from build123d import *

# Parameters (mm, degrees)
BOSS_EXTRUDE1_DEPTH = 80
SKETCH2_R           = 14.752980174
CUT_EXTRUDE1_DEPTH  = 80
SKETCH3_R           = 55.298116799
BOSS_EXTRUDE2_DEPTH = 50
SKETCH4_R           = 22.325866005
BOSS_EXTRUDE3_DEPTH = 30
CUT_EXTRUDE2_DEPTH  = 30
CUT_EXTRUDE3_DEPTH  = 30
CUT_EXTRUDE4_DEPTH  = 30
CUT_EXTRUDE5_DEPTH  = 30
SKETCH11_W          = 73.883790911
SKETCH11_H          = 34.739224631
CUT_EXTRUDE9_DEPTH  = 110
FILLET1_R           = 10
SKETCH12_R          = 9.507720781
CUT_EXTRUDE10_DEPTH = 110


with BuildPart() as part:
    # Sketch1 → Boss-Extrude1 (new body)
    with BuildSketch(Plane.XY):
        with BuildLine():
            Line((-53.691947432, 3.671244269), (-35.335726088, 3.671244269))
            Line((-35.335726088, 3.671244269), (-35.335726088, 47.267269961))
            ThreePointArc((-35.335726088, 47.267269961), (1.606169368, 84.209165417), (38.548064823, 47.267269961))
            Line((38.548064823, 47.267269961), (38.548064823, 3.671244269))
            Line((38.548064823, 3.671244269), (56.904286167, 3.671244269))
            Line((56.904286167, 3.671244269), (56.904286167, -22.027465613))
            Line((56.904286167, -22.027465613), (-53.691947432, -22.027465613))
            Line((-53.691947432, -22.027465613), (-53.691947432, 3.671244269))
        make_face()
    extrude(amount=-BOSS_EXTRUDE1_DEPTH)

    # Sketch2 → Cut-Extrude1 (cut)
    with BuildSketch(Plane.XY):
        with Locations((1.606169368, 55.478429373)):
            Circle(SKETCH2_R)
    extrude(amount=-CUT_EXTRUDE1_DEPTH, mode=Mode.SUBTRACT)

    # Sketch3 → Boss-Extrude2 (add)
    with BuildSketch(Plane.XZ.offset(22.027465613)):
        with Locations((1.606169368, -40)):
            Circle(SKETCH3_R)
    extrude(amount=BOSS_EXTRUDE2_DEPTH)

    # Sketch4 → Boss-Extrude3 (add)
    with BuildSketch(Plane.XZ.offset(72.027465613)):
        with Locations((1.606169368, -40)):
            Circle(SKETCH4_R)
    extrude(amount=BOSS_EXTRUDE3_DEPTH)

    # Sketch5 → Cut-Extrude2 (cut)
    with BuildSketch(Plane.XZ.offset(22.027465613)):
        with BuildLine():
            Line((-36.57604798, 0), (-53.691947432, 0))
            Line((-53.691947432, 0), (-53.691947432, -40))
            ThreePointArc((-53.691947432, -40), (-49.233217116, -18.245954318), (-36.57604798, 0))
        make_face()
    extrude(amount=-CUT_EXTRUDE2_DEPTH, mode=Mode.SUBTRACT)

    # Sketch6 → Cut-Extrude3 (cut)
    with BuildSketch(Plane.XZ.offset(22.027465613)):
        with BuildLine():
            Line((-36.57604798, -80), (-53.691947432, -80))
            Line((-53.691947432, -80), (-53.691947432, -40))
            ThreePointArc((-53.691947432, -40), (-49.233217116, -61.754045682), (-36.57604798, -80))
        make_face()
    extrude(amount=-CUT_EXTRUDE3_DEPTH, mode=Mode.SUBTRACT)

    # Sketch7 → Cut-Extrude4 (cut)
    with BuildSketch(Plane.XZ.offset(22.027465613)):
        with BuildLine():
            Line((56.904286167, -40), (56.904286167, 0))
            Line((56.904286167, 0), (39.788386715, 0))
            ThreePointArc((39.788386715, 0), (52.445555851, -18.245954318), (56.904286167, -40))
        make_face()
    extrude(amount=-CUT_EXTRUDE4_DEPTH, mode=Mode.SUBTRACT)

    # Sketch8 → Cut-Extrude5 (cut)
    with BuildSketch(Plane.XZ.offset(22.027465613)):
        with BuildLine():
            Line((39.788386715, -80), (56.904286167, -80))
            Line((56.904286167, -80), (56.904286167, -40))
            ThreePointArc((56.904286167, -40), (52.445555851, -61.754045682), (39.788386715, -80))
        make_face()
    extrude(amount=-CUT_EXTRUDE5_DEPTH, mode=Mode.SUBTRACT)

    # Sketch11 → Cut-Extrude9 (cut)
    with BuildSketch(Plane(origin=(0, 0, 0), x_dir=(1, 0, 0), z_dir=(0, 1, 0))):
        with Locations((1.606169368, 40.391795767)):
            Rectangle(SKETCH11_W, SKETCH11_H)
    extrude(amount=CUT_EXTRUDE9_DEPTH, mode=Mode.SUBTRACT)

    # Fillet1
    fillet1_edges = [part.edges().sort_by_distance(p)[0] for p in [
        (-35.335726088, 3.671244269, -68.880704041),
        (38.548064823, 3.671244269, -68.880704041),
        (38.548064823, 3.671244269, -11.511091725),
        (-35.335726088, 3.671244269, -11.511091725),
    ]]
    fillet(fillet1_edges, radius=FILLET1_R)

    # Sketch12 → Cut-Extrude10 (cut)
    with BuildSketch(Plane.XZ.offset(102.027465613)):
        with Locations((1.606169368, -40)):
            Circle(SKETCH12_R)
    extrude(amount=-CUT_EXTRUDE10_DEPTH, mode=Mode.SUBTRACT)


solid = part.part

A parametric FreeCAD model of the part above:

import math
import FreeCAD as App
import Part
import Sketcher

V = App.Vector
Q = App.Units.Quantity


def edges_at(feature, points):
    """Names of the edges that pass closest to the given points."""
    edges = feature.Shape.Edges
    near = lambda p: min(range(len(edges)), key=lambda i: edges[i].distToShape(Part.Vertex(*p))[0])
    return sorted({f"Edge{near(p) + 1}" for p in points})

doc = App.newDocument("Part")
body = doc.addObject("PartDesign::Body", "Body")

sketch1 = doc.addObject("Sketcher::SketchObject", "Sketch")
body.addObject(sketch1)
sketch1.AttachmentSupport = (doc.XY_Plane, [""])
sketch1.MapMode = "FlatFace"
sketch1.addGeometry(Part.LineSegment(V(-35.335726, 3.671244, 0), V(-53.691947, 3.671244, 0)), False)
sketch1.addGeometry(Part.LineSegment(V(-53.691947, 3.671244, 0), V(-53.691947, -22.027466, 0)), False)
sketch1.addGeometry(Part.LineSegment(V(-53.691947, -22.027466, 0), V(56.904286, -22.027466, 0)), False)
sketch1.addGeometry(Part.LineSegment(V(56.904286, -22.027466, 0), V(56.904286, 3.671244, 0)), False)
sketch1.addGeometry(Part.LineSegment(V(56.904286, 3.671244, 0), V(38.548065, 3.671244, 0)), False)
sketch1.addGeometry(Part.LineSegment(V(38.548065, 3.671244, 0), V(38.548065, 47.26727, 0)), False)
sketch1.addGeometry(Part.ArcOfCircle(Part.Circle(V(1.606169, 47.26727, 0), V(0, 0, 1), 36.941895), math.radians(0), math.radians(180)), False)
sketch1.addGeometry(Part.LineSegment(V(-35.335726, 47.26727, 0), V(-35.335726, 3.671244, 0)), False)
sketch1.addConstraint(Sketcher.Constraint("Coincident", 0, 2, 1, 1))
sketch1.addConstraint(Sketcher.Constraint("Coincident", 1, 2, 2, 1))
sketch1.addConstraint(Sketcher.Constraint("Coincident", 2, 2, 3, 1))
sketch1.addConstraint(Sketcher.Constraint("Coincident", 3, 2, 4, 1))
sketch1.addConstraint(Sketcher.Constraint("Coincident", 4, 2, 5, 1))
sketch1.addConstraint(Sketcher.Constraint("Tangent", 5, 2, 6, 1))
sketch1.addConstraint(Sketcher.Constraint("Tangent", 6, 2, 7, 1))
sketch1.addConstraint(Sketcher.Constraint("Coincident", 7, 2, 0, 1))
sketch1.addConstraint(Sketcher.Constraint("Horizontal", 0))
sketch1.addConstraint(Sketcher.Constraint("Vertical", 1))
sketch1.addConstraint(Sketcher.Constraint("Horizontal", 2))
sketch1.addConstraint(Sketcher.Constraint("Vertical", 3))
sketch1.addConstraint(Sketcher.Constraint("Horizontal", 4))
sketch1.addConstraint(Sketcher.Constraint("Vertical", 5))
sketch1.addConstraint(Sketcher.Constraint("Vertical", 7))
sketch1.addConstraint(Sketcher.Constraint("Horizontal", 0, 2, 3, 2))
sketch1.addConstraint(Sketcher.Constraint("Equal", 0, 4))
sketch1.addConstraint(Sketcher.Constraint("Radius", 6, Q("36.941895 mm")))
sketch1.addConstraint(Sketcher.Constraint("DistanceX", 0, 2, 0, 1, Q("18.356221 mm")))
sketch1.addConstraint(Sketcher.Constraint("DistanceY", 1, 2, 1, 1, Q("25.69871 mm")))
sketch1.addConstraint(Sketcher.Constraint("DistanceY", 5, 1, 5, 2, Q("43.596026 mm")))
sketch1.addConstraint(Sketcher.Constraint("DistanceX", -1, 1, 6, 3, Q("1.606169 mm")))
sketch1.addConstraint(Sketcher.Constraint("DistanceY", -1, 1, 6, 3, Q("47.26727 mm")))
pad1 = doc.addObject("PartDesign::Pad", "Pad")
body.addObject(pad1)
pad1.Profile = sketch1
pad1.Length = 80
pad1.Reversed = True

sketch2 = doc.addObject("Sketcher::SketchObject", "Sketch001")
body.addObject(sketch2)
sketch2.AttachmentSupport = (doc.XY_Plane, [""])
sketch2.MapMode = "FlatFace"
sketch2.addGeometry(Part.Circle(V(1.606169, 55.478429, 0), V(0, 0, 1), 14.75298), False)
sketch2.addConstraint(Sketcher.Constraint("Diameter", 0, Q("29.50596 mm")))
sketch2.addConstraint(Sketcher.Constraint("DistanceX", -1, 1, 0, 3, Q("1.606169 mm")))
sketch2.addConstraint(Sketcher.Constraint("DistanceY", -1, 1, 0, 3, Q("55.478429 mm")))
pocket1 = doc.addObject("PartDesign::Pocket", "Pocket")
body.addObject(pocket1)
pocket1.Profile = sketch2
pocket1.Length = 80

sketch3 = doc.addObject("Sketcher::SketchObject", "Sketch002")
body.addObject(sketch3)
sketch3.AttachmentSupport = (doc.XZ_Plane, [""])
sketch3.MapMode = "FlatFace"
sketch3.AttachmentOffset = App.Placement(V(0, 0, 22.027466), App.Rotation())
sketch3.addGeometry(Part.Circle(V(1.606169, -40, 0), V(0, 0, 1), 55.298117), False)
sketch3.addConstraint(Sketcher.Constraint("DistanceY", 0, 3, -1, 1, Q("40 mm")))
sketch3.addConstraint(Sketcher.Constraint("Diameter", 0, Q("110.596234 mm")))
sketch3.addConstraint(Sketcher.Constraint("DistanceX", -1, 1, 0, 3, Q("1.606169 mm")))
pad2 = doc.addObject("PartDesign::Pad", "Pad001")
body.addObject(pad2)
pad2.Profile = sketch3
pad2.Length = 50

sketch4 = doc.addObject("Sketcher::SketchObject", "Sketch003")
body.addObject(sketch4)
sketch4.AttachmentSupport = (doc.XZ_Plane, [""])
sketch4.MapMode = "FlatFace"
sketch4.AttachmentOffset = App.Placement(V(0, 0, 72.027466), App.Rotation())
sketch4.addGeometry(Part.Circle(V(1.606169, -40, 0), V(0, 0, 1), 22.325866), False)
sketch4.addConstraint(Sketcher.Constraint("DistanceY", 0, 3, -1, 1, Q("40 mm")))
sketch4.addConstraint(Sketcher.Constraint("Diameter", 0, Q("44.651732 mm")))
sketch4.addConstraint(Sketcher.Constraint("DistanceX", -1, 1, 0, 3, Q("1.606169 mm")))
pad3 = doc.addObject("PartDesign::Pad", "Pad002")
body.addObject(pad3)
pad3.Profile = sketch4
pad3.Length = 30

sketch5 = doc.addObject("Sketcher::SketchObject", "Sketch004")
body.addObject(sketch5)
sketch5.AttachmentSupport = (doc.XZ_Plane, [""])
sketch5.MapMode = "FlatFace"
sketch5.AttachmentOffset = App.Placement(V(0, 0, 22.027466), App.Rotation())
sketch5.addGeometry(Part.LineSegment(V(-36.576048, 0, 0), V(-53.691947, 0, 0)), False)
sketch5.addGeometry(Part.LineSegment(V(-53.691947, 0, 0), V(-53.691947, -40, 0)), False)
sketch5.addGeometry(Part.ArcOfCircle(Part.Circle(V(1.606169, -40, 0), V(0, 0, 1), 55.298117), math.radians(133.668079), math.radians(180)), False)
sketch5.addConstraint(Sketcher.Constraint("Coincident", 0, 2, 1, 1))
sketch5.addConstraint(Sketcher.Constraint("Tangent", 1, 2, 2, 2))
sketch5.addConstraint(Sketcher.Constraint("Coincident", 2, 1, 0, 1))
sketch5.addConstraint(Sketcher.Constraint("Horizontal", 0))
sketch5.addConstraint(Sketcher.Constraint("Vertical", 1))
sketch5.addConstraint(Sketcher.Constraint("PointOnObject", 0, 2, -1))
sketch5.addConstraint(Sketcher.Constraint("DistanceY", 1, 2, 1, 1, Q("40 mm")))
sketch5.addConstraint(Sketcher.Constraint("DistanceX", 0, 2, 0, 1, Q("17.115899 mm")))
sketch5.addConstraint(Sketcher.Constraint("DistanceX", -1, 1, 2, 3, Q("1.606169 mm")))
pocket2 = doc.addObject("PartDesign::Pocket", "Pocket001")
body.addObject(pocket2)
pocket2.Profile = sketch5
pocket2.Length = 30

sketch6 = doc.addObject("Sketcher::SketchObject", "Sketch005")
body.addObject(sketch6)
sketch6.AttachmentSupport = (doc.XZ_Plane, [""])
sketch6.MapMode = "FlatFace"
sketch6.AttachmentOffset = App.Placement(V(0, 0, 22.027466), App.Rotation())
sketch6.addGeometry(Part.LineSegment(V(-53.691947, -80, 0), V(-36.576048, -80, 0)), False)
sketch6.addGeometry(Part.ArcOfCircle(Part.Circle(V(1.606169, -40, 0), V(0, 0, 1), 55.298117), math.radians(-180), math.radians(-133.668079)), False)
sketch6.addGeometry(Part.LineSegment(V(-53.691947, -40, 0), V(-53.691947, -80, 0)), False)
sketch6.addConstraint(Sketcher.Constraint("Coincident", 0, 2, 1, 2))
sketch6.addConstraint(Sketcher.Constraint("Tangent", 1, 1, 2, 1))
sketch6.addConstraint(Sketcher.Constraint("Coincident", 2, 2, 0, 1))
sketch6.addConstraint(Sketcher.Constraint("Horizontal", 0))
sketch6.addConstraint(Sketcher.Constraint("Vertical", 2))
sketch6.addConstraint(Sketcher.Constraint("DistanceY", 2, 2, 2, 1, Q("40 mm")))
sketch6.addConstraint(Sketcher.Constraint("DistanceY", 1, 3, -1, 1, Q("40 mm")))
sketch6.addConstraint(Sketcher.Constraint("DistanceX", 0, 1, 0, 2, Q("17.115899 mm")))
sketch6.addConstraint(Sketcher.Constraint("DistanceX", -1, 1, 1, 3, Q("1.606169 mm")))
pocket3 = doc.addObject("PartDesign::Pocket", "Pocket002")
body.addObject(pocket3)
pocket3.Profile = sketch6
pocket3.Length = 30

sketch7 = doc.addObject("Sketcher::SketchObject", "Sketch006")
body.addObject(sketch7)
sketch7.AttachmentSupport = (doc.XZ_Plane, [""])
sketch7.MapMode = "FlatFace"
sketch7.AttachmentOffset = App.Placement(V(0, 0, 22.027466), App.Rotation())
sketch7.addGeometry(Part.LineSegment(V(56.904286, -40, 0), V(56.904286, 0, 0)), False)
sketch7.addGeometry(Part.LineSegment(V(56.904286, 0, 0), V(39.788387, 0, 0)), False)
sketch7.addGeometry(Part.ArcOfCircle(Part.Circle(V(1.606169, -40, 0), V(0, 0, 1), 55.298117), math.radians(0), math.radians(46.331921)), False)
sketch7.addConstraint(Sketcher.Constraint("Coincident", 0, 2, 1, 1))
sketch7.addConstraint(Sketcher.Constraint("Coincident", 1, 2, 2, 2))
sketch7.addConstraint(Sketcher.Constraint("Tangent", 2, 1, 0, 1))
sketch7.addConstraint(Sketcher.Constraint("Vertical", 0))
sketch7.addConstraint(Sketcher.Constraint("Horizontal", 1))
sketch7.addConstraint(Sketcher.Constraint("PointOnObject", 0, 2, -1))
sketch7.addConstraint(Sketcher.Constraint("DistanceY", 0, 1, 0, 2, Q("40 mm")))
sketch7.addConstraint(Sketcher.Constraint("DistanceX", 1, 2, 1, 1, Q("17.115899 mm")))
sketch7.addConstraint(Sketcher.Constraint("DistanceX", -1, 1, 2, 3, Q("1.606169 mm")))
pocket4 = doc.addObject("PartDesign::Pocket", "Pocket003")
body.addObject(pocket4)
pocket4.Profile = sketch7
pocket4.Length = 30

sketch8 = doc.addObject("Sketcher::SketchObject", "Sketch007")
body.addObject(sketch8)
sketch8.AttachmentSupport = (doc.XZ_Plane, [""])
sketch8.MapMode = "FlatFace"
sketch8.AttachmentOffset = App.Placement(V(0, 0, 22.027466), App.Rotation())
sketch8.addGeometry(Part.LineSegment(V(39.788387, -80, 0), V(56.904286, -80, 0)), False)
sketch8.addGeometry(Part.LineSegment(V(56.904286, -80, 0), V(56.904286, -40, 0)), False)
sketch8.addGeometry(Part.ArcOfCircle(Part.Circle(V(1.606169, -40, 0), V(0, 0, 1), 55.298117), math.radians(-46.331921), math.radians(0)), False)
sketch8.addConstraint(Sketcher.Constraint("Coincident", 0, 2, 1, 1))
sketch8.addConstraint(Sketcher.Constraint("Tangent", 1, 2, 2, 2))
sketch8.addConstraint(Sketcher.Constraint("Coincident", 2, 1, 0, 1))
sketch8.addConstraint(Sketcher.Constraint("Horizontal", 0))
sketch8.addConstraint(Sketcher.Constraint("Vertical", 1))
sketch8.addConstraint(Sketcher.Constraint("DistanceY", 1, 1, 1, 2, Q("40 mm")))
sketch8.addConstraint(Sketcher.Constraint("DistanceY", 2, 3, -1, 1, Q("40 mm")))
sketch8.addConstraint(Sketcher.Constraint("DistanceX", 0, 1, 0, 2, Q("17.115899 mm")))
sketch8.addConstraint(Sketcher.Constraint("DistanceX", -1, 1, 2, 3, Q("1.606169 mm")))
pocket5 = doc.addObject("PartDesign::Pocket", "Pocket004")
body.addObject(pocket5)
pocket5.Profile = sketch8
pocket5.Length = 30

sketch9 = doc.addObject("Sketcher::SketchObject", "Sketch008")
body.addObject(sketch9)
sketch9.AttachmentSupport = (doc.XZ_Plane, [""])
sketch9.MapMode = "FlatFace"
sketch9.addGeometry(Part.LineSegment(V(-35.335726, -57.761408, 0), V(-35.335726, -23.022183, 0)), False)
sketch9.addGeometry(Part.LineSegment(V(-35.335726, -23.022183, 0), V(38.548065, -23.022183, 0)), False)
sketch9.addGeometry(Part.LineSegment(V(38.548065, -23.022183, 0), V(38.548065, -57.761408, 0)), False)
sketch9.addGeometry(Part.LineSegment(V(38.548065, -57.761408, 0), V(-35.335726, -57.761408, 0)), False)
sketch9.addConstraint(Sketcher.Constraint("Coincident", 0, 2, 1, 1))
sketch9.addConstraint(Sketcher.Constraint("Coincident", 1, 2, 2, 1))
sketch9.addConstraint(Sketcher.Constraint("Coincident", 2, 2, 3, 1))
sketch9.addConstraint(Sketcher.Constraint("Coincident", 3, 2, 0, 1))
sketch9.addConstraint(Sketcher.Constraint("Vertical", 0))
sketch9.addConstraint(Sketcher.Constraint("Horizontal", 1))
sketch9.addConstraint(Sketcher.Constraint("Vertical", 2))
sketch9.addConstraint(Sketcher.Constraint("Horizontal", 3))
sketch9.addConstraint(Sketcher.Constraint("DistanceX", 1, 1, 1, 2, Q("73.883791 mm")))
sketch9.addConstraint(Sketcher.Constraint("DistanceY", 0, 1, 0, 2, Q("34.739225 mm")))
sketch9.addConstraint(Sketcher.Constraint("DistanceY", 2, 2, -1, 1, Q("57.761408 mm")))
sketch9.addConstraint(Sketcher.Constraint("DistanceX", 0, 2, -1, 1, Q("35.335726 mm")))
pocket6 = doc.addObject("PartDesign::Pocket", "Pocket005")
body.addObject(pocket6)
pocket6.Profile = sketch9
pocket6.Length = 110
doc.recompute()

fillet = doc.addObject("PartDesign::Fillet", "Fillet")
body.addObject(fillet)
fillet.Base = (pocket6, edges_at(pocket6, [
    (-35.336, 3.671, -68.881),
    (38.548, 3.671, -68.881),
    (38.548, 3.671, -11.511),
    (-35.336, 3.671, -11.511),
]))
fillet.Radius = 10

sketch10 = doc.addObject("Sketcher::SketchObject", "Sketch009")
body.addObject(sketch10)
sketch10.AttachmentSupport = (doc.XZ_Plane, [""])
sketch10.MapMode = "FlatFace"
sketch10.AttachmentOffset = App.Placement(V(0, 0, 102.027466), App.Rotation())
sketch10.addGeometry(Part.Circle(V(1.606169, -40, 0), V(0, 0, 1), 9.507721), False)
sketch10.addConstraint(Sketcher.Constraint("DistanceY", 0, 3, -1, 1, Q("40 mm")))
sketch10.addConstraint(Sketcher.Constraint("Diameter", 0, Q("19.015442 mm")))
sketch10.addConstraint(Sketcher.Constraint("DistanceX", -1, 1, 0, 3, Q("1.606169 mm")))
pocket7 = doc.addObject("PartDesign::Pocket", "Pocket006")
body.addObject(pocket7)
pocket7.Profile = sketch10
pocket7.Length = 110

doc.recompute()
